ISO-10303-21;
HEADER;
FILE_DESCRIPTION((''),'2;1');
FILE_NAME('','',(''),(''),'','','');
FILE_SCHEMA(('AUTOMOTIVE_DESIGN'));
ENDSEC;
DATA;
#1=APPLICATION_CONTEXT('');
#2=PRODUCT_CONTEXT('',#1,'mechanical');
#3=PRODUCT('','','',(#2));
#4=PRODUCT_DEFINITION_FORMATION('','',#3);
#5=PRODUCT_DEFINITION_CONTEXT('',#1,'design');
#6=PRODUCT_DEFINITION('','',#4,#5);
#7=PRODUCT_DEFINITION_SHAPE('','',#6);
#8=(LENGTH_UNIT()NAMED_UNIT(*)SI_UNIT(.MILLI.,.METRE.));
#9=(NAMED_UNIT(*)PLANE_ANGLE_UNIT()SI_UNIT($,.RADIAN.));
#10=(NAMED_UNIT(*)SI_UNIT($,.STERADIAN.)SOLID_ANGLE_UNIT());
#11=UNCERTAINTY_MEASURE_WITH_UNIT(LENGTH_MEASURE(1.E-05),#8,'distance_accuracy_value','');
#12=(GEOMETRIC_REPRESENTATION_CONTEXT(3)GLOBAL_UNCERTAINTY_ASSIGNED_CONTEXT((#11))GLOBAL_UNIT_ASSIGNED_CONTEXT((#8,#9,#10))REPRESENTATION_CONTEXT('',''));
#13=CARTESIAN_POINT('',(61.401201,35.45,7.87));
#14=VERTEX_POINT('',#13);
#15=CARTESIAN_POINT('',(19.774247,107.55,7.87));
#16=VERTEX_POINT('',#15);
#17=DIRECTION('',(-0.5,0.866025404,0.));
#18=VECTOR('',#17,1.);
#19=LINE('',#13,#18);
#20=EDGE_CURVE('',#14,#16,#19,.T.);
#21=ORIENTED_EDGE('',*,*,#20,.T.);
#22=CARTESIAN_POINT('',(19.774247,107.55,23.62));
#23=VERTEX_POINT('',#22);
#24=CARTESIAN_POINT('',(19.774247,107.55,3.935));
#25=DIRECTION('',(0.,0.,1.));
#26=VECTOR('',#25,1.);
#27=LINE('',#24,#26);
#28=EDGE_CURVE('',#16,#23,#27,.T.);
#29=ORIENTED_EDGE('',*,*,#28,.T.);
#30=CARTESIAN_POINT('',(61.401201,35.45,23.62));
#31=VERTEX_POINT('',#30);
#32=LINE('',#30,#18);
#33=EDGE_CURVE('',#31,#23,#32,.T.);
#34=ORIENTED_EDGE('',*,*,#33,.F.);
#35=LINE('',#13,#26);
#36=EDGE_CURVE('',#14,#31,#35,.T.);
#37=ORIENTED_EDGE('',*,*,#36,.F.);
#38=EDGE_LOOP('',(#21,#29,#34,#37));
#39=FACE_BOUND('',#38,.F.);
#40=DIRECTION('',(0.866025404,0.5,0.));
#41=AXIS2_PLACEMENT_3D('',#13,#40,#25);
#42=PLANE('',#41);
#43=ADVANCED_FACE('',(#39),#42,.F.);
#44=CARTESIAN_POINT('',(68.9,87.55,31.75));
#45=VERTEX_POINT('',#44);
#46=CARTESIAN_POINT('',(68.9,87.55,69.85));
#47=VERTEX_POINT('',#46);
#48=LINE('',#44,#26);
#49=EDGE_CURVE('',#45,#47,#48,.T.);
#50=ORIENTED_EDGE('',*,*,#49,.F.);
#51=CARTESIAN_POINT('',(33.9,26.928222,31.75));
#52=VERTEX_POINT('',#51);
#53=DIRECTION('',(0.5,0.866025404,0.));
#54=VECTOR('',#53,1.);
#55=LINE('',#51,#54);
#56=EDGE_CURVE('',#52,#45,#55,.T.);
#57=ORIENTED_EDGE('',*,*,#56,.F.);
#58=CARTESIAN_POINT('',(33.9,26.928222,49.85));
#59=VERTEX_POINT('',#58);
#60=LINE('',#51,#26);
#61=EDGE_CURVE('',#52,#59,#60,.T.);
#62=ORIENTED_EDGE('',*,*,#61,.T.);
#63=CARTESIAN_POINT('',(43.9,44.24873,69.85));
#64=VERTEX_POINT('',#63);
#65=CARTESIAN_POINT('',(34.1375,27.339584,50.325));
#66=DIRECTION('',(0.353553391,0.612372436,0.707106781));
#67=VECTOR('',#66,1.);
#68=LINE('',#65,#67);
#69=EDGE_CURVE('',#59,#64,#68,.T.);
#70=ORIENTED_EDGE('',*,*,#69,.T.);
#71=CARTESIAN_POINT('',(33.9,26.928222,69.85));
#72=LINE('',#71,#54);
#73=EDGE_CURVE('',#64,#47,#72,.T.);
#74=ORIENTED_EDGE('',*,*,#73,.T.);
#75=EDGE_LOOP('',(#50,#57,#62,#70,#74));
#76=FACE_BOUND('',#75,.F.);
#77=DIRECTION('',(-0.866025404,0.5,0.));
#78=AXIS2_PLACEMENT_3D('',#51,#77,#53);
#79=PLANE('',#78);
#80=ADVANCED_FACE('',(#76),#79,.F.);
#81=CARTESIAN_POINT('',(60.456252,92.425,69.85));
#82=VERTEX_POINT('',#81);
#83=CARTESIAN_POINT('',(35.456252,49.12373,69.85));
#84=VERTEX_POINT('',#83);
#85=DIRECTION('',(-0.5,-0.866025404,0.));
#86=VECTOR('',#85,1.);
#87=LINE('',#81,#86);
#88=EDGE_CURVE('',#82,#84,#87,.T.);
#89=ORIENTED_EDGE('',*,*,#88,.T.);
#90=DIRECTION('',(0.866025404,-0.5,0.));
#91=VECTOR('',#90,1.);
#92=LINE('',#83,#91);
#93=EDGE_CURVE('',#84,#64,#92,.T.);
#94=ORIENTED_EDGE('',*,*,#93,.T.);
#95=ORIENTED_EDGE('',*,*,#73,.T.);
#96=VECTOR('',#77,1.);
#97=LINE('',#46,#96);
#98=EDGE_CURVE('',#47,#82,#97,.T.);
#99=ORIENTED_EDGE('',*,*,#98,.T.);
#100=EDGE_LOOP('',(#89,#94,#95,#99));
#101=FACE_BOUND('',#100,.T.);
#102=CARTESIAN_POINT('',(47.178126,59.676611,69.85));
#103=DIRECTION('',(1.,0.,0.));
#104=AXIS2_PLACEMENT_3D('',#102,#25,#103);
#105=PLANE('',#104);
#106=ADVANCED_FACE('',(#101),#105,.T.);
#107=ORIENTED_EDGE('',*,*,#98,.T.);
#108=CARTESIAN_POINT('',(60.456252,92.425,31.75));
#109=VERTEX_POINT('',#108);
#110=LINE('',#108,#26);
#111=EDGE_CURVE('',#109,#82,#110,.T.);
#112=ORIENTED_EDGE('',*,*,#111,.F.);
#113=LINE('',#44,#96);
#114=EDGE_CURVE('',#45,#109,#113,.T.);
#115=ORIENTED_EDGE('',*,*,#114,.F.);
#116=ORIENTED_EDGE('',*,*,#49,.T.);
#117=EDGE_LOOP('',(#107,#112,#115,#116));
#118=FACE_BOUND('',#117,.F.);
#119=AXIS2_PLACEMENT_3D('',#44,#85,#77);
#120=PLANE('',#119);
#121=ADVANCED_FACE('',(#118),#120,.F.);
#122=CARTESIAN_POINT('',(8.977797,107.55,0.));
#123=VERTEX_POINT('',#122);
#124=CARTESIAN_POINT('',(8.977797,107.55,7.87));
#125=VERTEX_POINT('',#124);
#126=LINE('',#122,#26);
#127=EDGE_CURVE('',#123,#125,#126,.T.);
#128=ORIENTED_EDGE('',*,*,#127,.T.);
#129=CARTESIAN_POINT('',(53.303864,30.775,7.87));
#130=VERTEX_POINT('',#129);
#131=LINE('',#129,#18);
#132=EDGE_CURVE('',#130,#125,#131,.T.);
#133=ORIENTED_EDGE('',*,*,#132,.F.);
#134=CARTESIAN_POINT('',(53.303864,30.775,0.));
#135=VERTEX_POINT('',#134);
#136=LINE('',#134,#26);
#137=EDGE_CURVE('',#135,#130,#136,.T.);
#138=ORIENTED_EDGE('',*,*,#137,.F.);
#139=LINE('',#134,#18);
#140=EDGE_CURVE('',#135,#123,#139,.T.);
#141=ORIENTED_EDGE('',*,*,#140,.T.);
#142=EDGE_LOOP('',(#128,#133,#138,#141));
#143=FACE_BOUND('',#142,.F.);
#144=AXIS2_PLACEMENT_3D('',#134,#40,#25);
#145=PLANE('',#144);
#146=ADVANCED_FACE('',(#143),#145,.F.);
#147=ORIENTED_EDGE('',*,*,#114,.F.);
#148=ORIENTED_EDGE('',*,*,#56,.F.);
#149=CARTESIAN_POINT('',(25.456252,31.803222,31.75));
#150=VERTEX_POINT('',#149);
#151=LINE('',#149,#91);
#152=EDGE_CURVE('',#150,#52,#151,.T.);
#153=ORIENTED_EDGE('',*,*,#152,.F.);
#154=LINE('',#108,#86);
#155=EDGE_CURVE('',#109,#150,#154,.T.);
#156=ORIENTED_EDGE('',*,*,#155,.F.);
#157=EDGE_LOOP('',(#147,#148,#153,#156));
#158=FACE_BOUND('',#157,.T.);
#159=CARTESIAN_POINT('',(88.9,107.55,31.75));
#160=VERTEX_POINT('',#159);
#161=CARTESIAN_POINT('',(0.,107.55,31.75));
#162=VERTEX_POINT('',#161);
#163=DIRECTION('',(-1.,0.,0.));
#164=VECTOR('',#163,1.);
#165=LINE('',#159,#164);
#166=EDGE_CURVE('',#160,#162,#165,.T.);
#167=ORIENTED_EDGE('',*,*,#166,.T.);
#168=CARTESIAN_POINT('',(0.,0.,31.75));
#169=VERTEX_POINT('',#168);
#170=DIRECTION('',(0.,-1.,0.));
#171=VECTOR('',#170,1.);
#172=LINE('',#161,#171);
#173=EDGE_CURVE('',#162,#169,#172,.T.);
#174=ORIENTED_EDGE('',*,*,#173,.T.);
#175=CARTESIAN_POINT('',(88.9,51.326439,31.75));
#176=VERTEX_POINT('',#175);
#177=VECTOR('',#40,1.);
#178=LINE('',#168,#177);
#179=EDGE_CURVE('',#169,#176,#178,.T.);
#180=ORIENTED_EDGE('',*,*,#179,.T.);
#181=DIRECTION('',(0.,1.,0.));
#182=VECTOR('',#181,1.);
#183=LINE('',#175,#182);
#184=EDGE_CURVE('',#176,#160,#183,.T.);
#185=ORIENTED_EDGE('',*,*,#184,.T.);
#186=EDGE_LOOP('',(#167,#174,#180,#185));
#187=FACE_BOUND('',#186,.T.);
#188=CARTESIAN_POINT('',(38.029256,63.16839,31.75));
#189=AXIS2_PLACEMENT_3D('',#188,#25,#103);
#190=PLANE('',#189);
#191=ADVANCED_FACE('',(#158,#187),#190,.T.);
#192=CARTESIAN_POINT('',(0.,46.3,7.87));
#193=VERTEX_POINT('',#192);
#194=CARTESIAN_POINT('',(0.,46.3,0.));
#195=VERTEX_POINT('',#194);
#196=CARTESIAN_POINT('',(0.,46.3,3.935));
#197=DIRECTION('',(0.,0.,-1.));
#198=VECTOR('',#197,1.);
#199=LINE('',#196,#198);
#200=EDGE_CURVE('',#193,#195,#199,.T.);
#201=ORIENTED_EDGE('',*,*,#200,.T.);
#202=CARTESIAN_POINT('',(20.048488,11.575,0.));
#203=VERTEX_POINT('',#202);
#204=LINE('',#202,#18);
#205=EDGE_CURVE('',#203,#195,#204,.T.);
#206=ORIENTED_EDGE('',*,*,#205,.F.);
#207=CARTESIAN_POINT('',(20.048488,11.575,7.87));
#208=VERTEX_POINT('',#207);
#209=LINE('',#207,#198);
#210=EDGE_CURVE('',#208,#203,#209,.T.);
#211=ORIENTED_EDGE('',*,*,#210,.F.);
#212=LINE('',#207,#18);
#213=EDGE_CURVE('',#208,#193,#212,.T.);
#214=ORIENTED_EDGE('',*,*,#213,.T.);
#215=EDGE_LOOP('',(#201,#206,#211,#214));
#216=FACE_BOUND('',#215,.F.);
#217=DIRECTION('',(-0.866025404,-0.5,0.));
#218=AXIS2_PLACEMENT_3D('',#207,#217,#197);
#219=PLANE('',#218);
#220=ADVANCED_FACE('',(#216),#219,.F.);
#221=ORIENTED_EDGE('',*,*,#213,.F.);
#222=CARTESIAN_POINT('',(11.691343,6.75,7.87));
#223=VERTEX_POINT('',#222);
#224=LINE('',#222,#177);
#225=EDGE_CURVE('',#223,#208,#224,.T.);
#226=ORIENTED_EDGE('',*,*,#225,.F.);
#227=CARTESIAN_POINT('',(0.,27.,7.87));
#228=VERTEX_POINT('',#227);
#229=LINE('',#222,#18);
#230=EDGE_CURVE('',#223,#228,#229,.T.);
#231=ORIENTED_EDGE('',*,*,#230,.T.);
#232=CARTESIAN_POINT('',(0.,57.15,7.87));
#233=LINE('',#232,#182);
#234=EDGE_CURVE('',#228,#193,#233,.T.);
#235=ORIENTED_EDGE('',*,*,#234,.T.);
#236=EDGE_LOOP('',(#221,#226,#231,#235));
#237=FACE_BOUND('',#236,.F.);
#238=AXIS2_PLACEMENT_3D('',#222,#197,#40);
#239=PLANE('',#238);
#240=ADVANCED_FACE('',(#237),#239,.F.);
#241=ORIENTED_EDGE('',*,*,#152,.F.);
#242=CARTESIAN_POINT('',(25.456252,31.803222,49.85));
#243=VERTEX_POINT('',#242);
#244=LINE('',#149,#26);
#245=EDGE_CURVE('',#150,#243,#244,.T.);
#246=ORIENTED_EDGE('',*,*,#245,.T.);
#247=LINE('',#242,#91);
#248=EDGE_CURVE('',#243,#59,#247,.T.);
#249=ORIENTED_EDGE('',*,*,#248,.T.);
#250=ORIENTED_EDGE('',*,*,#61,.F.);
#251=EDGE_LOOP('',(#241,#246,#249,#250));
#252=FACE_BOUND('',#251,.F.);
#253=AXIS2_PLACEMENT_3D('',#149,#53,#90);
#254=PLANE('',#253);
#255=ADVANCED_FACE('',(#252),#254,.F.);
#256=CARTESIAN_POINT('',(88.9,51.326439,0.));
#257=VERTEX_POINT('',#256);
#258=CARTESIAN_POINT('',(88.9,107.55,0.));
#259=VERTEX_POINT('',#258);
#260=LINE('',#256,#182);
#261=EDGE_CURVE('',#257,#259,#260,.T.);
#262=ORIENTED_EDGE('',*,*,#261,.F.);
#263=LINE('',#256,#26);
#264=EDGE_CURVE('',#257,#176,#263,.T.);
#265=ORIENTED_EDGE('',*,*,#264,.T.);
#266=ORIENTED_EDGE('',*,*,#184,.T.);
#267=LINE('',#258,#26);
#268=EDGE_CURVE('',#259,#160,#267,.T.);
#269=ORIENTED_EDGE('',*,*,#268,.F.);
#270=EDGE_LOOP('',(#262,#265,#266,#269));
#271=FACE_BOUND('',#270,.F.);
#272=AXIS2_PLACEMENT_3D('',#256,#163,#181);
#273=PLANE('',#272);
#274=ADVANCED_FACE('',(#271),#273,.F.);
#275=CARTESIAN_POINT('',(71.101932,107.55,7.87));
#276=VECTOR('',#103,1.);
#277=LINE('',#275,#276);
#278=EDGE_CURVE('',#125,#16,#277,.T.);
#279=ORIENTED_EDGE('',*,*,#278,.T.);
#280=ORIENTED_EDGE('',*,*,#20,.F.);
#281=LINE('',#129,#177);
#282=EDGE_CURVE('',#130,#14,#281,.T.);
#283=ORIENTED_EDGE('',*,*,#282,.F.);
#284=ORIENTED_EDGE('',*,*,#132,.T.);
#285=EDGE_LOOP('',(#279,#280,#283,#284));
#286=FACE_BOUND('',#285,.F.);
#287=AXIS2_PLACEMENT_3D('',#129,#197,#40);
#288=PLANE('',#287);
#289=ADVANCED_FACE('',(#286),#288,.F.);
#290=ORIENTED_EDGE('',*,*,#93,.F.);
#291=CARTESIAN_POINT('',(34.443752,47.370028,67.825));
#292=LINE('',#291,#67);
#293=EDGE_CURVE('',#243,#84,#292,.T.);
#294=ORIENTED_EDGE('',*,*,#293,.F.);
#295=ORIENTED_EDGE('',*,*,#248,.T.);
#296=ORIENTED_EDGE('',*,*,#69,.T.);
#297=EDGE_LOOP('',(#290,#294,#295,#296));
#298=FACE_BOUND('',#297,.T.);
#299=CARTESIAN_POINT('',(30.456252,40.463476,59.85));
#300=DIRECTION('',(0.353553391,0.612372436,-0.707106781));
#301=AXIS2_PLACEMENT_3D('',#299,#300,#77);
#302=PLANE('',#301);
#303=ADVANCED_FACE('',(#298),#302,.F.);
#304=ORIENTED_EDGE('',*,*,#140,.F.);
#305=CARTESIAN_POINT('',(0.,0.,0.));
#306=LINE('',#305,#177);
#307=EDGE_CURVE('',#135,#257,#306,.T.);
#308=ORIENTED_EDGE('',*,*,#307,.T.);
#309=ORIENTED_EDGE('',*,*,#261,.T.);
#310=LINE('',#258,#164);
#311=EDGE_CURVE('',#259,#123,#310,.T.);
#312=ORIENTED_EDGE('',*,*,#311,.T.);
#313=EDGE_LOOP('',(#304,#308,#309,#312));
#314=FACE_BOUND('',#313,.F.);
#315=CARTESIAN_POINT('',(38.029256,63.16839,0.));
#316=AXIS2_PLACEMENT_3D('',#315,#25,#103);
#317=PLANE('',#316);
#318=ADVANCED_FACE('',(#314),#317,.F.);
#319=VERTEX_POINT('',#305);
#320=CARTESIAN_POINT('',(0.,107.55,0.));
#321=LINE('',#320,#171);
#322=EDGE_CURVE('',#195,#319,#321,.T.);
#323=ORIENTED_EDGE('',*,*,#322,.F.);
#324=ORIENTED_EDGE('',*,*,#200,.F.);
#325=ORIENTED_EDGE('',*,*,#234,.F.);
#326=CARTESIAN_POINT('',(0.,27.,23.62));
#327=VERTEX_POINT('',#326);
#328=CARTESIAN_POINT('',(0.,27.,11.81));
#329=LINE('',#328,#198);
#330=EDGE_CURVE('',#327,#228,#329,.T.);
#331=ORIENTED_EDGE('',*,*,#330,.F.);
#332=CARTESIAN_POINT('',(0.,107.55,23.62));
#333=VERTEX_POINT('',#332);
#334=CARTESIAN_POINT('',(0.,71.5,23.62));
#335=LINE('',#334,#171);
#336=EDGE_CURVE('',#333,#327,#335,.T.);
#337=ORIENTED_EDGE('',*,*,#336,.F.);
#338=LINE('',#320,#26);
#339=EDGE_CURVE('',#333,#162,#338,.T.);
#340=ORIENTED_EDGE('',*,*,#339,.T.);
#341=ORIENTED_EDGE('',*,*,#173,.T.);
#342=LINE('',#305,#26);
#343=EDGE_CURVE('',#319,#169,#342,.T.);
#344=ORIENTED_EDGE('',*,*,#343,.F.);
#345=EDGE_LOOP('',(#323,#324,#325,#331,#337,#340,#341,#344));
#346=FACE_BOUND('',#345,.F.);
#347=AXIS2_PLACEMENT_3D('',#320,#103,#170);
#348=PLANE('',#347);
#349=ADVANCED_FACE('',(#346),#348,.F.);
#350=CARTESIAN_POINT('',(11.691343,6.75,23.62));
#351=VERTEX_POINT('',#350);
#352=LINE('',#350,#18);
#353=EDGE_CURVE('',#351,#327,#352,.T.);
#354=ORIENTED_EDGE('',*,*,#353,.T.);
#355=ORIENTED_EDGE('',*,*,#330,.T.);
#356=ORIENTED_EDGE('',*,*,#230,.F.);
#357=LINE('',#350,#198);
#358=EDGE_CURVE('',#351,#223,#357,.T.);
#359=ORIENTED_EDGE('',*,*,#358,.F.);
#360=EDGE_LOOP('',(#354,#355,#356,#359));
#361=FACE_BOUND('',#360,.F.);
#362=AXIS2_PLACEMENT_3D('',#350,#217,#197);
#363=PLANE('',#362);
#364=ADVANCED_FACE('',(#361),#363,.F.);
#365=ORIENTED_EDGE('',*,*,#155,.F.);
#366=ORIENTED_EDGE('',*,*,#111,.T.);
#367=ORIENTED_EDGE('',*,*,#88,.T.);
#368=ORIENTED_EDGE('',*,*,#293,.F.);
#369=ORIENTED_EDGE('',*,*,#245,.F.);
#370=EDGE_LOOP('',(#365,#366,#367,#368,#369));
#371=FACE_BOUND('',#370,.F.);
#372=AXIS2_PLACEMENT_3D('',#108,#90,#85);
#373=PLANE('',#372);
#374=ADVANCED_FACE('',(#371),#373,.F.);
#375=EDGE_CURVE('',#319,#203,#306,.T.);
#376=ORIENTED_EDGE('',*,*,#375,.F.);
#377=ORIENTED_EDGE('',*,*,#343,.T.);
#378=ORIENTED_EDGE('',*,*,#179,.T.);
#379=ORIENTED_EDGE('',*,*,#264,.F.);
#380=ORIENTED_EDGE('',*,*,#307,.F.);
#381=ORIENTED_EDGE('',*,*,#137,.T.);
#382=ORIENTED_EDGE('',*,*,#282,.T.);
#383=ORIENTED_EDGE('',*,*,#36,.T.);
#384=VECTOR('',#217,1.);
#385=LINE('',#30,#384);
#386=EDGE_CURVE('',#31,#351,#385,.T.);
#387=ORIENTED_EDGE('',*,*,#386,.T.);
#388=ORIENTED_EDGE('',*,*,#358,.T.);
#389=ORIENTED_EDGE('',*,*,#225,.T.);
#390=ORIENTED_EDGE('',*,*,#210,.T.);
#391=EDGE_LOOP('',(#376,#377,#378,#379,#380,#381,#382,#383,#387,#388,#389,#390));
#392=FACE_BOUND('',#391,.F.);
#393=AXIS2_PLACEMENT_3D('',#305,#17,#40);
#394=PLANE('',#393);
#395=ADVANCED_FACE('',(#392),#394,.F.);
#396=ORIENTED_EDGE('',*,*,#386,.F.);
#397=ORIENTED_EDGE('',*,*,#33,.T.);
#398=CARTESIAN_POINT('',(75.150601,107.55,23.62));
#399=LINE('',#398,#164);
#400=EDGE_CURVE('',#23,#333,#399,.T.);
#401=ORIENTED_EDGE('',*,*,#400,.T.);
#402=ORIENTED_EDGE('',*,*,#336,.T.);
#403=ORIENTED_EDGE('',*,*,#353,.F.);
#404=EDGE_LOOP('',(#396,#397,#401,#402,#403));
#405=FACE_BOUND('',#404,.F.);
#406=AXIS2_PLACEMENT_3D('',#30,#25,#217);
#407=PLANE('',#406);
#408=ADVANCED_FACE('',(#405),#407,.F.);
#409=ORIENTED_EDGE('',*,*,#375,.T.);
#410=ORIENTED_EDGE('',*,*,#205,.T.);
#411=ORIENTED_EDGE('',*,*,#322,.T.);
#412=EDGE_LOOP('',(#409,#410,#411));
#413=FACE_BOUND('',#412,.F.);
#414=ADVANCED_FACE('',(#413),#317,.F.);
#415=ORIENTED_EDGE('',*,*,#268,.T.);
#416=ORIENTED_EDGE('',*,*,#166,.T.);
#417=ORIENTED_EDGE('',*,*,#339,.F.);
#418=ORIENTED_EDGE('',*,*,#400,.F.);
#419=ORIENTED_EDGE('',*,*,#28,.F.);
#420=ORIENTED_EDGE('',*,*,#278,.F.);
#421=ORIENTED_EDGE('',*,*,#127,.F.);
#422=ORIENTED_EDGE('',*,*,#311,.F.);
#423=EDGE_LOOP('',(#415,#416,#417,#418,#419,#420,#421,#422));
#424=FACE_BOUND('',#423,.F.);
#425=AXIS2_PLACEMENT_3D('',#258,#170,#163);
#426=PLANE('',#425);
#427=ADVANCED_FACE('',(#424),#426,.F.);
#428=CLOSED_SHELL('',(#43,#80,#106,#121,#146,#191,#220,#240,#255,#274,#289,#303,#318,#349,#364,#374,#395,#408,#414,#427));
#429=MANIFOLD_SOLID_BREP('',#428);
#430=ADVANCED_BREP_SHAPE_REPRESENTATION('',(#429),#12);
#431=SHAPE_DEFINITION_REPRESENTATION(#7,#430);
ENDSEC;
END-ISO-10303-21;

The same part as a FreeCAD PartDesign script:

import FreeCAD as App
import Part
import Sketcher
Q = App.Units.Quantity


def edges_at(feature, points):
    """Names of the edges that pass closest to the given points."""
    edges = feature.Shape.Edges
    near = lambda p: min(range(len(edges)), key=lambda i: edges[i].distToShape(Part.Vertex(*p))[0])
    return sorted({f"Edge{near(p) + 1}" for p in points})

doc = App.newDocument("Part")
params = doc.addObject("Spreadsheet::Sheet", "Params")
for row, (alias, value) in enumerate([
    ("sketch1_width", "88.9 mm"),
    ("sketch1_height", "107.55 mm"),
    ("pad1_length", "31.75 mm"),
    ("sketch2_width", "57.4 mm"),
    ("sketch2_width2", "38.4 mm"),
    ("sketch2_width3", "9.65 mm"),
    ("sketch2_height", "15.75 mm"),
    ("sketch2_height2", "7.87 mm"),
    ("pocket1_length", "120 mm"),
    ("sketch3_length", "70 mm"),
    ("sketch3_length2", "9.75 mm"),
    ("pad2_length", "38.1 mm"),
    ("chamfer_size", "20 mm"),
], start=1):
    params.set(f"A{row}", alias)
    params.set(f"B{row}", "=" + value)
    params.setAlias(f"B{row}", alias)

body = doc.addObject("PartDesign::Body", "Body")

sketch1 = doc.addObject("Sketcher::SketchObject", "Sketch")
body.addObject(sketch1)
sketch1.AttachmentSupport = (doc.XY_Plane, [""])
sketch1.MapMode = "FlatFace"
sketch1.addGeometry([
    Part.LineSegment(App.Vector(89, 108, 0), App.Vector(0, 108, 0)),
    Part.LineSegment(App.Vector(0, 108, 0), App.Vector(0, 0, 0)),
    Part.LineSegment(App.Vector(0, 0, 0), App.Vector(89, 51, 0)),
    Part.LineSegment(App.Vector(89, 51, 0), App.Vector(89, 108, 0)),
], False)
sketch1.addConstraint([
    Sketcher.Constraint("Coincident", 0, 2, 1, 1),
    Sketcher.Constraint("Coincident", 1, 2, 2, 1),
    Sketcher.Constraint("Coincident", 2, 2, 3, 1),
    Sketcher.Constraint("Coincident", 3, 2, 0, 1),
    Sketcher.Constraint("Horizontal", 0),
    Sketcher.Constraint("Vertical", 1),
    Sketcher.Constraint("Vertical", 3),
    Sketcher.Constraint("Coincident", 1, 2, -1, 1),
    Sketcher.Constraint("Angle", 2, Q("30 deg")),
    Sketcher.Constraint("DistanceX", 0, 2, 0, 1, Q("88.9 mm")),
    Sketcher.Constraint("DistanceY", 1, 2, 1, 1, Q("107.55 mm")),
])
sketch1.setExpression("Constraints[9]", "Params.sketch1_width")
sketch1.setExpression("Constraints[10]", "Params.sketch1_height")
pad1 = doc.addObject("PartDesign::Pad", "Pad")
body.addObject(pad1)
pad1.Profile = sketch1
pad1.setExpression("Length", "Params.pad1_length")

sketch2 = doc.addObject("Sketcher::SketchObject", "Sketch001")
body.addObject(sketch2)
sketch2.Placement = App.Placement(App.Vector(0, 0, 0), App.Rotation(App.Vector(0.866025404, 0.5, 0), App.Vector(0, 0, 1), App.Vector(0.5, -0.866025404, 0), "ZXY"))
sketch2.addGeometry([
    Part.LineSegment(App.Vector(71, 24, 0), App.Vector(14, 24, 0)),
    Part.LineSegment(App.Vector(14, 24, 0), App.Vector(14, 8, 0)),
    Part.LineSegment(App.Vector(14, 8, 0), App.Vector(23, 8, 0)),
    Part.LineSegment(App.Vector(23, 8, 0), App.Vector(23, 0, 0)),
    Part.LineSegment(App.Vector(23, 0, 0), App.Vector(62, 0, 0)),
    Part.LineSegment(App.Vector(62, 0, 0), App.Vector(62, 8, 0)),
    Part.LineSegment(App.Vector(62, 8, 0), App.Vector(71, 8, 0)),
    Part.LineSegment(App.Vector(71, 8, 0), App.Vector(71, 24, 0)),
], False)
sketch2.addConstraint([
    Sketcher.Constraint("Coincident", 0, 2, 1, 1),
    Sketcher.Constraint("Coincident", 1, 2, 2, 1),
    Sketcher.Constraint("Coincident", 2, 2, 3, 1),
    Sketcher.Constraint("Coincident", 3, 2, 4, 1),
    Sketcher.Constraint("Coincident", 4, 2, 5, 1),
    Sketcher.Constraint("Coincident", 5, 2, 6, 1),
    Sketcher.Constraint("Coincident", 6, 2, 7, 1),
    Sketcher.Constraint("Coincident", 7, 2, 0, 1),
    Sketcher.Constraint("Horizontal", 0),
    Sketcher.Constraint("Vertical", 1),
    Sketcher.Constraint("Horizontal", 2),
    Sketcher.Constraint("Vertical", 3),
    Sketcher.Constraint("Horizontal", 4),
    Sketcher.Constraint("Vertical", 5),
    Sketcher.Constraint("Horizontal", 6),
    Sketcher.Constraint("Vertical", 7),
    Sketcher.Constraint("PointOnObject", 3, 2, -1),
    Sketcher.Constraint("Horizontal", 2, 2, 5, 2),
    Sketcher.Constraint("DistanceX", 0, 2, 0, 1, Q("57.4 mm")),
    Sketcher.Constraint("DistanceX", 4, 1, 4, 2, Q("38.4 mm")),
    Sketcher.Constraint("DistanceX", 2, 1, 2, 2, Q("9.65 mm")),
    Sketcher.Constraint("DistanceY", 1, 2, 1, 1, Q("15.75 mm")),
    Sketcher.Constraint("DistanceY", 3, 2, 3, 1, Q("7.87 mm")),
    Sketcher.Constraint("DistanceX", -1, 1, 0, 2, Q("13.5 mm")),
])
sketch2.setExpression("Constraints[18]", "Params.sketch2_width")
sketch2.setExpression("Constraints[19]", "Params.sketch2_width2")
sketch2.setExpression("Constraints[20]", "Params.sketch2_width3")
sketch2.setExpression("Constraints[21]", "Params.sketch2_height")
sketch2.setExpression("Constraints[22]", "Params.sketch2_height2")
pocket1 = doc.addObject("PartDesign::Pocket", "Pocket")
body.addObject(pocket1)
pocket1.Profile = sketch2
pocket1.setExpression("Length", "Params.pocket1_length")

sketch3 = doc.addObject("Sketcher::SketchObject", "Sketch002")
body.addObject(sketch3)
sketch3.AttachmentSupport = (doc.XY_Plane, [""])
sketch3.MapMode = "FlatFace"
sketch3.AttachmentOffset = App.Placement(App.Vector(0, 0, 31.75), App.Rotation())
sketch3.addGeometry([
    Part.LineSegment(App.Vector(34, 27, 0), App.Vector(69, 88, 0)),
    Part.LineSegment(App.Vector(69, 88, 0), App.Vector(60, 92, 0)),
    Part.LineSegment(App.Vector(60, 92, 0), App.Vector(25, 32, 0)),
    Part.LineSegment(App.Vector(25, 32, 0), App.Vector(34, 27, 0)),
], False)
sketch3.addConstraint([
    Sketcher.Constraint("Coincident", 0, 2, 1, 1),
    Sketcher.Constraint("Coincident", 1, 2, 2, 1),
    Sketcher.Constraint("Coincident", 2, 2, 3, 1),
    Sketcher.Constraint("Coincident", 3, 2, 0, 1),
    Sketcher.Constraint("Perpendicular", 0, 1),
    Sketcher.Constraint("Perpendicular", 1, 2),
    Sketcher.Constraint("Perpendicular", 2, 3),
    Sketcher.Constraint("Angle", 0, Q("60 deg")),
    Sketcher.Constraint("Distance", 0, Q("70 mm")),
    Sketcher.Constraint("DistanceX", -1, 1, 0, 2, Q("68.9 mm")),
    Sketcher.Constraint("Distance", 1, Q("9.75 mm")),
    Sketcher.Constraint("DistanceY", -1, 1, 0, 2, Q("87.55 mm")),
])
sketch3.setExpression("Constraints[8]", "Params.sketch3_length")
sketch3.setExpression("Constraints[10]", "Params.sketch3_length2")
pad2 = doc.addObject("PartDesign::Pad", "Pad001")
body.addObject(pad2)
pad2.Profile = sketch3
pad2.setExpression("Length", "Params.pad2_length")
doc.recompute()

chamfer = doc.addObject("PartDesign::Chamfer", "Chamfer")
body.addObject(chamfer)
chamfer.Base = (pad2, edges_at(pad2, [(29.678, 29.366, 69.85)]))
chamfer.setExpression("Size", "Params.chamfer_size")

doc.recompute()
